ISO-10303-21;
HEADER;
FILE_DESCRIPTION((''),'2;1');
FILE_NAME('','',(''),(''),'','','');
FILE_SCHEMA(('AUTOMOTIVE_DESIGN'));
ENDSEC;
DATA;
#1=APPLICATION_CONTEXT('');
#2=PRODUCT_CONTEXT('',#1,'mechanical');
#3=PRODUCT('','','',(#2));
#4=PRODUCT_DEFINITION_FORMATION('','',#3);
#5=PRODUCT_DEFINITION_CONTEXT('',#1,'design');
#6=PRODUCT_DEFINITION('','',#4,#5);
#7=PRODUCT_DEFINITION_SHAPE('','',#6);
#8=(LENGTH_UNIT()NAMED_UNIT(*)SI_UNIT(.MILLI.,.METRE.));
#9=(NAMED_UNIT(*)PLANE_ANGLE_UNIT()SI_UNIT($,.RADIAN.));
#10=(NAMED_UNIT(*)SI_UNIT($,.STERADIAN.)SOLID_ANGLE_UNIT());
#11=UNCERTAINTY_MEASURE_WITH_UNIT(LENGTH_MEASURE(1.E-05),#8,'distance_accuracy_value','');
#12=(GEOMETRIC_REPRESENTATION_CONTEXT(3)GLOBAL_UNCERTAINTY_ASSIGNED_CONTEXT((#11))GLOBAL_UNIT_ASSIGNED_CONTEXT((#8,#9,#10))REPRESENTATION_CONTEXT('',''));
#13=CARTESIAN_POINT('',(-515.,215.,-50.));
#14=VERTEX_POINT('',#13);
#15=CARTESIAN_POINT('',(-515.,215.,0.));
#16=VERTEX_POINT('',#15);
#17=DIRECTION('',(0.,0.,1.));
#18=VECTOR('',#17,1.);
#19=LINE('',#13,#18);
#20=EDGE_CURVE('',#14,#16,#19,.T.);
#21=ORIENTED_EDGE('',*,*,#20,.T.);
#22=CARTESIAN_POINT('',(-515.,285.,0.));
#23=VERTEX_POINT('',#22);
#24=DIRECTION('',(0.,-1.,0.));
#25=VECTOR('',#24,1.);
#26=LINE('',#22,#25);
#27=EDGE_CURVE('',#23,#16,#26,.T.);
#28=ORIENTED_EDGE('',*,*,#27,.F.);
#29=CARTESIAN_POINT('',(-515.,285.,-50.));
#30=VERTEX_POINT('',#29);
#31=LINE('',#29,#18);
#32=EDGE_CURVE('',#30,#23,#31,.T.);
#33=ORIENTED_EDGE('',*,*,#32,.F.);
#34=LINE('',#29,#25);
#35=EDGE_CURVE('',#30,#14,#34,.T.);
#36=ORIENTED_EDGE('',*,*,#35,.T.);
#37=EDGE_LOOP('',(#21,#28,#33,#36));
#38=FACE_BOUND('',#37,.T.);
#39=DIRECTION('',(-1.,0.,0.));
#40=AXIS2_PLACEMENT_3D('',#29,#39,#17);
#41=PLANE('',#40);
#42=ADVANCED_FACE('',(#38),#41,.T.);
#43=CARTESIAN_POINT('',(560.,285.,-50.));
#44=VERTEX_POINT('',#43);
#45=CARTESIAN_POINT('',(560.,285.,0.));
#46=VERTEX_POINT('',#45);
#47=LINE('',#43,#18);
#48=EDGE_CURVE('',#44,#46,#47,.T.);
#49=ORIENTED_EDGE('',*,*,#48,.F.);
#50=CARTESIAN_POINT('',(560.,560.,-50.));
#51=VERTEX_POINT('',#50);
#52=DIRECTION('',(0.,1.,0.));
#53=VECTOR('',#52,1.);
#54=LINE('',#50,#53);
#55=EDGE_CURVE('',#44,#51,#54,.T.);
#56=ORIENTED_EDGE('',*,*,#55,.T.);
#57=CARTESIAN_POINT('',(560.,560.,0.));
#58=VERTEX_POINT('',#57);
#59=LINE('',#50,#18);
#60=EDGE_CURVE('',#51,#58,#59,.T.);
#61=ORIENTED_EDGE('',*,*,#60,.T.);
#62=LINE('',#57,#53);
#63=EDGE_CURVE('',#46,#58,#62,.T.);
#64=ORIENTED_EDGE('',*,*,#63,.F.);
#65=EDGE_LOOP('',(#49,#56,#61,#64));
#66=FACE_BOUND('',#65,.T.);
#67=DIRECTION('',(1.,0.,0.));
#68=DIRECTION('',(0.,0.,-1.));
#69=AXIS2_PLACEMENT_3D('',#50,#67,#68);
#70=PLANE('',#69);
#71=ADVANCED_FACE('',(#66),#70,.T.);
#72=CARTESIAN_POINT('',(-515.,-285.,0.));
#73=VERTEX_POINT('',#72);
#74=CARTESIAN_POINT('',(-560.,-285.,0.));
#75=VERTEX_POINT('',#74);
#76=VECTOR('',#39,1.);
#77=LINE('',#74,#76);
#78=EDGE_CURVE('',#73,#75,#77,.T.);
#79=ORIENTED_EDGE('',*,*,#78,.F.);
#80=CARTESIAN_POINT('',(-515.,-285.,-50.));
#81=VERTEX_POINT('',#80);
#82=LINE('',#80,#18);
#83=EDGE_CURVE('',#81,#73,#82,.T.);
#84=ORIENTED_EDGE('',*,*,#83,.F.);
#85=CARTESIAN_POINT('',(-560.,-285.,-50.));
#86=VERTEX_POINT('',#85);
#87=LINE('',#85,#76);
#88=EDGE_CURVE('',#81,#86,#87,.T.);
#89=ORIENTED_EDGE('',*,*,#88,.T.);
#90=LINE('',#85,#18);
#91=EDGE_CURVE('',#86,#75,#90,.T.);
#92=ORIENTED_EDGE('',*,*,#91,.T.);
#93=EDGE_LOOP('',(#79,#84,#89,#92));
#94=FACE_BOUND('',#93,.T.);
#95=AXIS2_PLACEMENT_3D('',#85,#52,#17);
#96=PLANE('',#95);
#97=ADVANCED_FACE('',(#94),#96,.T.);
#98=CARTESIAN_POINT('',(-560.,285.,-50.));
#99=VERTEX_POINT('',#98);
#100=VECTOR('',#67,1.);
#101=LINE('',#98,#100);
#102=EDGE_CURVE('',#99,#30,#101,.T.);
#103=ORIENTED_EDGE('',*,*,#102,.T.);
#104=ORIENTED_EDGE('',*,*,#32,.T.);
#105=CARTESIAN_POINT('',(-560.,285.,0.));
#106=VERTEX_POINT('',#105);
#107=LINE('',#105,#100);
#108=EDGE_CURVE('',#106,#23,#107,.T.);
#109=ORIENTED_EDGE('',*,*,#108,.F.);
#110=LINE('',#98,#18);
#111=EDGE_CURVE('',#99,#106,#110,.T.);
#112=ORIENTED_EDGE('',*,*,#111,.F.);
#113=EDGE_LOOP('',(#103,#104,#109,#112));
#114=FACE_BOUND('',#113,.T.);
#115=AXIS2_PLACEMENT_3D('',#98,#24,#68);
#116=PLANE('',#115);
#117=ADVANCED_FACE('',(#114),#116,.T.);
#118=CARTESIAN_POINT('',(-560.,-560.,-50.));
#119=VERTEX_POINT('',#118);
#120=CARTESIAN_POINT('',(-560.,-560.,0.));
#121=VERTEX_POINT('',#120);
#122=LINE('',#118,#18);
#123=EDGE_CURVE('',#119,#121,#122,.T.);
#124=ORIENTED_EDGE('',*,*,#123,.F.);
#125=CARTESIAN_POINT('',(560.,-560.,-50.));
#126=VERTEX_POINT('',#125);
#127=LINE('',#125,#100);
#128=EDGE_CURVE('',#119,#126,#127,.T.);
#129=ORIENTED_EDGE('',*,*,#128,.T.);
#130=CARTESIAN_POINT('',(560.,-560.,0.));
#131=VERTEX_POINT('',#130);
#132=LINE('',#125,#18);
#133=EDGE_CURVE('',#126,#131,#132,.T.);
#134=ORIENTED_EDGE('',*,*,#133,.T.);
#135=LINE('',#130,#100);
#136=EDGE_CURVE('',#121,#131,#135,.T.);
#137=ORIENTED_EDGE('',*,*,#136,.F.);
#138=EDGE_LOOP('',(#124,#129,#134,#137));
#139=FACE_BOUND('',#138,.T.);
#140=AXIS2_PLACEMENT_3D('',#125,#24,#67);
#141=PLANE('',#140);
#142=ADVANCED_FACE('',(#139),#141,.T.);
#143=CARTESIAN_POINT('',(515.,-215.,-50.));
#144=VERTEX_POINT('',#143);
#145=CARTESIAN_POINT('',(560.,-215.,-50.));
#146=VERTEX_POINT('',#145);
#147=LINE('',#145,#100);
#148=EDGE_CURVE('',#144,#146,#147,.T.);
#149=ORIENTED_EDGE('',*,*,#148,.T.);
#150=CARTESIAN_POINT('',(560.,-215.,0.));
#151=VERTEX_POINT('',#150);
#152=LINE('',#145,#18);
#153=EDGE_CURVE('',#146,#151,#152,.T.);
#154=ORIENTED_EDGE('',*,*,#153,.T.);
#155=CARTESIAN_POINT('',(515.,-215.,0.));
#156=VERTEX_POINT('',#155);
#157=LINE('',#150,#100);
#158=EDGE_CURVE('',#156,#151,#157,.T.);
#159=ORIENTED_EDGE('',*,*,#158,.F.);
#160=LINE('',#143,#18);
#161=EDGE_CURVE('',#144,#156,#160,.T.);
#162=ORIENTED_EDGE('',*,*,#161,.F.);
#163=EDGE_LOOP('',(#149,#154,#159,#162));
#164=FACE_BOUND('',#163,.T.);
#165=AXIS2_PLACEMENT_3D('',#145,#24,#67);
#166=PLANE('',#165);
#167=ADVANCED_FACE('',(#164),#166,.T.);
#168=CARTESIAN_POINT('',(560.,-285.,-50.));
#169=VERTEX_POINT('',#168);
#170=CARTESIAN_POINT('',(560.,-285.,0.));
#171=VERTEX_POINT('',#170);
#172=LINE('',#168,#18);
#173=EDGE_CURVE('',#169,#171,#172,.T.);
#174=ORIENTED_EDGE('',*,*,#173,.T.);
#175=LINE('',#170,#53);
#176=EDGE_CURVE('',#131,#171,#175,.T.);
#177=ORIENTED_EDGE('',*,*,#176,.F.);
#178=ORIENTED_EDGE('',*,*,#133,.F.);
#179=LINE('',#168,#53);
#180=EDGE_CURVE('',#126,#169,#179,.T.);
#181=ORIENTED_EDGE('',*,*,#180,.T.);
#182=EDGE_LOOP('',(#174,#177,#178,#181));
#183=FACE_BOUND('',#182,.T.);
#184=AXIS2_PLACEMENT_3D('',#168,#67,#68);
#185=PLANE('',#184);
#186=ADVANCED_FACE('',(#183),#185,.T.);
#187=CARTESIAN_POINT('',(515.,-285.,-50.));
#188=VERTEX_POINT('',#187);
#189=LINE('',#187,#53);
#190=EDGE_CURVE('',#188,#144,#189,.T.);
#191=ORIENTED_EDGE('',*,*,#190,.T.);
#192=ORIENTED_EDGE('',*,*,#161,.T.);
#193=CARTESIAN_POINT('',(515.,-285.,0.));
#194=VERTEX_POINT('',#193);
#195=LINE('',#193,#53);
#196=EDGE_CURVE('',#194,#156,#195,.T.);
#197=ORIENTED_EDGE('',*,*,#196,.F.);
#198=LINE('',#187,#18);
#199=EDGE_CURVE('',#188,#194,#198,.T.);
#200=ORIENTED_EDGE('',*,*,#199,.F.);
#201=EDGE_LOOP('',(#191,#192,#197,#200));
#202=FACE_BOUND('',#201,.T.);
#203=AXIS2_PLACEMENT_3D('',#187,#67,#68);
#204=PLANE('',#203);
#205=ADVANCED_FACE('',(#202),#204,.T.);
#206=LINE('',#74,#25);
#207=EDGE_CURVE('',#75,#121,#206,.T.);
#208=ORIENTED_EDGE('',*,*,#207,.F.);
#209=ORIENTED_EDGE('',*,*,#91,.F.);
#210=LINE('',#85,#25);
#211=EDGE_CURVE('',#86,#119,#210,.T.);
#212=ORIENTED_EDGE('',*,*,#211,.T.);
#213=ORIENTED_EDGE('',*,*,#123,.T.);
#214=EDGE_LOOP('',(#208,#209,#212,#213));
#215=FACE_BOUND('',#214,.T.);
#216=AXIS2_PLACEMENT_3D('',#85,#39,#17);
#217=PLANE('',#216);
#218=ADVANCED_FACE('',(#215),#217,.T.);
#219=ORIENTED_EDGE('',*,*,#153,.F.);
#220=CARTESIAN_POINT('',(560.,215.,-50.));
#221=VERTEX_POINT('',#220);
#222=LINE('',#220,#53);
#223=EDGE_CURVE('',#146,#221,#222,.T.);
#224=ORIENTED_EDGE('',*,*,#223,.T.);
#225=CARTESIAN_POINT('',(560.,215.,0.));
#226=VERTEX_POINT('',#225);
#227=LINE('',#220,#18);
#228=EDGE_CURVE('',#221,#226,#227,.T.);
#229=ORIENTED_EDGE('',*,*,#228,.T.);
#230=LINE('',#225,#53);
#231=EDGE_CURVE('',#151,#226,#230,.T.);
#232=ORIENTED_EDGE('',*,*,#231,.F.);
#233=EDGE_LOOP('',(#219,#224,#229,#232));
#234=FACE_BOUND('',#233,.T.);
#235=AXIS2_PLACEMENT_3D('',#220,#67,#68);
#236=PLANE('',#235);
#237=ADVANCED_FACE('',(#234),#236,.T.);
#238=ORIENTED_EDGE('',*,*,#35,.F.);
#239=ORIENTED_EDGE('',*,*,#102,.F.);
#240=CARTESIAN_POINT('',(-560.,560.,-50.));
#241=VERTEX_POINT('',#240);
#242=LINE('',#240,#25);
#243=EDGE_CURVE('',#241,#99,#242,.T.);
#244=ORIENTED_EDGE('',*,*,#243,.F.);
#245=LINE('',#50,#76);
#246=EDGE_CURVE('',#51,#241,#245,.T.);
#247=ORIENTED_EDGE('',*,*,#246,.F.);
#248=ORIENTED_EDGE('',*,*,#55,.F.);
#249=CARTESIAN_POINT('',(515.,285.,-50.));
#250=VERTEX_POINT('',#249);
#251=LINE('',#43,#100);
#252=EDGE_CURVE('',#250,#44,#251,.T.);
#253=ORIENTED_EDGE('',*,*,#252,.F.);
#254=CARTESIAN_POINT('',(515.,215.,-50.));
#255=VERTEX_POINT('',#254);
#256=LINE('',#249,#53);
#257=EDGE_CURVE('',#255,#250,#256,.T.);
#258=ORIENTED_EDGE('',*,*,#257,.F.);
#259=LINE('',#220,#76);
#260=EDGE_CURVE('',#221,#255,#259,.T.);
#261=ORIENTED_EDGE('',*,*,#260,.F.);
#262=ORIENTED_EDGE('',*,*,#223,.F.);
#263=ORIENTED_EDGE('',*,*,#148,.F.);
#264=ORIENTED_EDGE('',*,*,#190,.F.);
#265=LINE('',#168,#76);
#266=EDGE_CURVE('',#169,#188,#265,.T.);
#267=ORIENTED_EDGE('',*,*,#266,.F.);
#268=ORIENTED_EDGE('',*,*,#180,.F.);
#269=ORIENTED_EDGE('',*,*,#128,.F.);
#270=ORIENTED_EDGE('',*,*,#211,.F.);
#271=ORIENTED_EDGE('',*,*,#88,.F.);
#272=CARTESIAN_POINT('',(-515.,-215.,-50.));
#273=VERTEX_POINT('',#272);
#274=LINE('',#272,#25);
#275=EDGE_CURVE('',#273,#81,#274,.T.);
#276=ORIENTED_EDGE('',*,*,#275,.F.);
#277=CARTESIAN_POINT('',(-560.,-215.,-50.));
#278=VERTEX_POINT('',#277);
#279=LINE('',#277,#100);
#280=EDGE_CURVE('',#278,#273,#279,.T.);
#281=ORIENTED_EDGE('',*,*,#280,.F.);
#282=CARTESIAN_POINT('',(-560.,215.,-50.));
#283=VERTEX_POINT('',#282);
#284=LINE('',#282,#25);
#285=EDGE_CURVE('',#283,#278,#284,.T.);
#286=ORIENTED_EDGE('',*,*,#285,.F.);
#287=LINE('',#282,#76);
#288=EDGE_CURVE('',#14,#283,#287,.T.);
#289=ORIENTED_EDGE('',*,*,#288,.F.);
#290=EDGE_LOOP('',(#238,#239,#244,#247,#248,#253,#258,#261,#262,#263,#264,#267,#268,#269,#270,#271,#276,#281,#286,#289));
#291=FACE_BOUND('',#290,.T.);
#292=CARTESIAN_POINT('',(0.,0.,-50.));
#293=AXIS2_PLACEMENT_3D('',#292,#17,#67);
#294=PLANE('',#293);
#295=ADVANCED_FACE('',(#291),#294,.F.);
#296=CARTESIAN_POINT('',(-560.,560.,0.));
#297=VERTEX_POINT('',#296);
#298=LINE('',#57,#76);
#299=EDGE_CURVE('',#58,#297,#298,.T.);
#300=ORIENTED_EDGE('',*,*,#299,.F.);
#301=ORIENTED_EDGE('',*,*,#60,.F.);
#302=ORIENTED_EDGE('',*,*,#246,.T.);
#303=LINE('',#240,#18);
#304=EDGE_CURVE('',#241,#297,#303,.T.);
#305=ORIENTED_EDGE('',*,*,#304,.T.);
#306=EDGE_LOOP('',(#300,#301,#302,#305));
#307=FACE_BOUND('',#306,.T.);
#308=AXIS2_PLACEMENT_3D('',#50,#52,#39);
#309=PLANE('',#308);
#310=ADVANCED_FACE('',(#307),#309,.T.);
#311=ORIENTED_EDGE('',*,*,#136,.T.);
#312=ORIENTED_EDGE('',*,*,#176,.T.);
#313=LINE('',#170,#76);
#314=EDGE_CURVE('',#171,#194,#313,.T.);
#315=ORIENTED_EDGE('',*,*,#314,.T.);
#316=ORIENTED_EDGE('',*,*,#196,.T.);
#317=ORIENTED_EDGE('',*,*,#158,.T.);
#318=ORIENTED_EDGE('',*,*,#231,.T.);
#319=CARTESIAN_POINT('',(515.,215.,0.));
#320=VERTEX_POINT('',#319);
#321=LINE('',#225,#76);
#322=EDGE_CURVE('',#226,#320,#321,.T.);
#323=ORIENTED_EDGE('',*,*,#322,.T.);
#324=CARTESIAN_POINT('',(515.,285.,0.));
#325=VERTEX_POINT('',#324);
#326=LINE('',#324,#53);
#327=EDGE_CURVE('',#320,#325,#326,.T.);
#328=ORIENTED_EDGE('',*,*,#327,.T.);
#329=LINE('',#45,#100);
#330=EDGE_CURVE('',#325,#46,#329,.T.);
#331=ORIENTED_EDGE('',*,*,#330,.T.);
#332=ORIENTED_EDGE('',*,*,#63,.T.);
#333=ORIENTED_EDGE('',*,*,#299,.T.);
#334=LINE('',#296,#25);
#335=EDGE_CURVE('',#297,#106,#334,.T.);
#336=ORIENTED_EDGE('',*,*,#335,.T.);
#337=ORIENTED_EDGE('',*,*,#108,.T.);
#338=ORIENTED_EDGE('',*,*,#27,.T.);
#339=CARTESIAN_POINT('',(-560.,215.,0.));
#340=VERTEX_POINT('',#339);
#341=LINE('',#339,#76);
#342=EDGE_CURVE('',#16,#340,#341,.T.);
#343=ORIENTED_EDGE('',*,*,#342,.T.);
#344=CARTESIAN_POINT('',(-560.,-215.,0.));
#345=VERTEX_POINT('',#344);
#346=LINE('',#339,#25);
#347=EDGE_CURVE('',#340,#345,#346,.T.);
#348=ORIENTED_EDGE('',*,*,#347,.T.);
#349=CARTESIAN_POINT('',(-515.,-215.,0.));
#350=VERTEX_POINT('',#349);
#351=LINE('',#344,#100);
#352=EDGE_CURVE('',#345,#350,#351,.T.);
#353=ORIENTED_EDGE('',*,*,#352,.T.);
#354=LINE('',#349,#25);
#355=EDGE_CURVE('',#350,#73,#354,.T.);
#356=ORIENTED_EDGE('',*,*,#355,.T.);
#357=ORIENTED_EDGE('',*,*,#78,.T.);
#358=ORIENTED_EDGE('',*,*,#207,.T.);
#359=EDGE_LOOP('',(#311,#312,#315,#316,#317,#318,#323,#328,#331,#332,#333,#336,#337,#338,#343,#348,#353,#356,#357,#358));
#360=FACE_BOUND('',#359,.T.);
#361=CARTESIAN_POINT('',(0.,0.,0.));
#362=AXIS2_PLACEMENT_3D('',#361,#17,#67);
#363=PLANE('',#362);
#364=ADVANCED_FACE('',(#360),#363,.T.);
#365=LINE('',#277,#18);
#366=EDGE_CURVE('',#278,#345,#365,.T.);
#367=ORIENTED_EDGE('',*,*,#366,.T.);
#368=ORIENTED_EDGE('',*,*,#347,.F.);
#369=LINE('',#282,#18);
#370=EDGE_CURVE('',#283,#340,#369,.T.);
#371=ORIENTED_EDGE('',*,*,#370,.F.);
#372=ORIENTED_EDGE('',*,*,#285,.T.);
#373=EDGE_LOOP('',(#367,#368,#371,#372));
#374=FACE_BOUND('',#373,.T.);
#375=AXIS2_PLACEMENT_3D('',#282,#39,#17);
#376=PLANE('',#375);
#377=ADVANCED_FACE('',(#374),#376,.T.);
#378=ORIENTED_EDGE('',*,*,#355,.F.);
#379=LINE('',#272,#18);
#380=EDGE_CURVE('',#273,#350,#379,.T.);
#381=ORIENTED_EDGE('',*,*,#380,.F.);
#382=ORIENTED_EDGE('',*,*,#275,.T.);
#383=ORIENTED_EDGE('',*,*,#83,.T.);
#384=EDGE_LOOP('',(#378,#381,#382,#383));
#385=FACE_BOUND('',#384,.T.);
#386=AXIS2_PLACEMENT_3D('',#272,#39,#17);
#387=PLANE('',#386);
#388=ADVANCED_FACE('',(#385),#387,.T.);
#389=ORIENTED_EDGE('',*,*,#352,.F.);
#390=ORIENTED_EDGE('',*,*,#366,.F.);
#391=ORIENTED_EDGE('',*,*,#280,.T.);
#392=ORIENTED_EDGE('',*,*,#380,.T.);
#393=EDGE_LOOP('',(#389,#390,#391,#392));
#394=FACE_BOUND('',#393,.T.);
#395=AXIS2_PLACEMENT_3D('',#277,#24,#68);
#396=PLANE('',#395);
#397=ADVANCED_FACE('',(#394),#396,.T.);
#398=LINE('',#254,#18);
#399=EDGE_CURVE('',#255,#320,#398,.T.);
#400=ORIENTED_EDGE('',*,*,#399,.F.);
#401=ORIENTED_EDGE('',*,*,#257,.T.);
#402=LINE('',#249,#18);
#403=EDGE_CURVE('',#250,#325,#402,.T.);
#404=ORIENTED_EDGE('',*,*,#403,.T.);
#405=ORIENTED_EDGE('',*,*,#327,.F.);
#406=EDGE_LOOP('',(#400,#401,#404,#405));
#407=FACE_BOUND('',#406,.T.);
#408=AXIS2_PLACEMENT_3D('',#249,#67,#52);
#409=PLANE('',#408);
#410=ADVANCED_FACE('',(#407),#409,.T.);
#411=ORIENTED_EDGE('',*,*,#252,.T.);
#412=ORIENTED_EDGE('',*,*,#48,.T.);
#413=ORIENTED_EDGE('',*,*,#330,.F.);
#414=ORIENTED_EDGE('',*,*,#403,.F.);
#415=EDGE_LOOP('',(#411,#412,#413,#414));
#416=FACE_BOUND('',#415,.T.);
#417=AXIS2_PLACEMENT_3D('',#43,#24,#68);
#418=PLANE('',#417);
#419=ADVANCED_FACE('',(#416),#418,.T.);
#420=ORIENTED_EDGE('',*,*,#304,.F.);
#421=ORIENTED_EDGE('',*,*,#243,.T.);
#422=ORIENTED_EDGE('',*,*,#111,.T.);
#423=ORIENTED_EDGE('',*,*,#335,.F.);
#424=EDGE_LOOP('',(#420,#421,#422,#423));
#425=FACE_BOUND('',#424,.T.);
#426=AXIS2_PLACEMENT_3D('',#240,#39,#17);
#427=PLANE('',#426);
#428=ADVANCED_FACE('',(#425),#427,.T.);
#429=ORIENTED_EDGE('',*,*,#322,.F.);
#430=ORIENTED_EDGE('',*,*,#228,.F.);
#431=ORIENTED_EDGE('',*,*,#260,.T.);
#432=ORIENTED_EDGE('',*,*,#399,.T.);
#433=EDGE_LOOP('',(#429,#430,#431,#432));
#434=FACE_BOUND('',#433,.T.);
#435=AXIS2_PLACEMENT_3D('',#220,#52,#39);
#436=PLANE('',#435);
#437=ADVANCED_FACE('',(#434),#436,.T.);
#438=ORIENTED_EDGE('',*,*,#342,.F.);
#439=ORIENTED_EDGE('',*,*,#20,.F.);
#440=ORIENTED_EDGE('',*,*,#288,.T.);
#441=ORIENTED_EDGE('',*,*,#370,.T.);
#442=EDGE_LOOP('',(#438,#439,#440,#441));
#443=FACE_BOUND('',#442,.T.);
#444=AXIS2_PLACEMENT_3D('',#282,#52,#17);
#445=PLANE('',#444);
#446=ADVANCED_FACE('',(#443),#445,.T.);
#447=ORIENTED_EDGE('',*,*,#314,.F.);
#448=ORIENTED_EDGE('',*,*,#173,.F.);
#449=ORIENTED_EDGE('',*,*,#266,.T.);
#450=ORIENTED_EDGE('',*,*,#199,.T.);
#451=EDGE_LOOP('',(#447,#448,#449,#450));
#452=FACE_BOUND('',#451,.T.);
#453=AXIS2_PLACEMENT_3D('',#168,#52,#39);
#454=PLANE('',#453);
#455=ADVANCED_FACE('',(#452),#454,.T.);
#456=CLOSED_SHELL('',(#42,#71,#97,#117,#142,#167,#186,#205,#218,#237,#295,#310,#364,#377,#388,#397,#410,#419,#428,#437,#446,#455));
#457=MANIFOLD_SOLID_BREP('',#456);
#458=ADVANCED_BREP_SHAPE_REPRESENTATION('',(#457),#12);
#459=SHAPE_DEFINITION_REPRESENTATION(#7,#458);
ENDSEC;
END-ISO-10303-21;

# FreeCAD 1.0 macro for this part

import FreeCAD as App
import Part
import Sketcher
from FreeCAD import Vector


def add_polygon(sketch, points):
    """Adds a closed chain of lines whose ends are joined by coincident constraints."""
    first, n = sketch.GeometryCount, len(points)
    for a, b in zip(points, points[1:] + points[:1]):
        sketch.addGeometry(Part.LineSegment(App.Vector(*a, 0), App.Vector(*b, 0)), False)
    for i in range(n):
        sketch.addConstraint(Sketcher.Constraint("Coincident", first + i, 2, first + (i + 1) % n, 1))

doc = App.newDocument("Part")
body = doc.addObject("PartDesign::Body", "Body")

# Sketch on XY plane
sketch1 = body.newObject("Sketcher::SketchObject", "Sketch")
sketch1.AttachmentSupport = (doc.getObject("XY_Plane"), [""])
sketch1.MapMode = "FlatFace"
add_polygon(sketch1, [(-560, -560), (560, -560), (560, -285), (515, -285), (515, -215), (560, -215), (560, 215), (515, 215), (515, 285), (560, 285), (560, 560), (-560, 560), (-560, 285), (-515, 285), (-515, 215), (-560, 215), (-560, -215), (-515, -215), (-515, -285), (-560, -285)])  # lines 0-19
sketch1.addConstraint([
    Sketcher.Constraint("Horizontal", 0),
    Sketcher.Constraint("Vertical", 1),
    Sketcher.Constraint("Horizontal", 2),
    Sketcher.Constraint("Vertical", 3),
    Sketcher.Constraint("Horizontal", 4),
    Sketcher.Constraint("Vertical", 5),
    Sketcher.Constraint("Horizontal", 6),
    Sketcher.Constraint("Vertical", 7),
    Sketcher.Constraint("Horizontal", 8),
    Sketcher.Constraint("Vertical", 9),
    Sketcher.Constraint("Horizontal", 10),
    Sketcher.Constraint("Vertical", 11),
    Sketcher.Constraint("Horizontal", 12),
    Sketcher.Constraint("Vertical", 13),
    Sketcher.Constraint("Horizontal", 14),
    Sketcher.Constraint("Vertical", 15),
    Sketcher.Constraint("Horizontal", 16),
    Sketcher.Constraint("Vertical", 17),
    Sketcher.Constraint("Horizontal", 18),
    Sketcher.Constraint("Vertical", 19),
    Sketcher.Constraint("Symmetric", 0, 2, 10, 2, -1, 1),
    Sketcher.Constraint("Symmetric", 2, 2, 12, 2, -1, 1),
    Sketcher.Constraint("Symmetric", 4, 2, 14, 2, -1, 1),
    Sketcher.Constraint("Symmetric", 6, 2, 16, 2, -1, 1),
    Sketcher.Constraint("Symmetric", 8, 2, 18, 2, -1, 1),
    Sketcher.Constraint("Symmetric", 8, 2, 11, 2, -2),
    Sketcher.Constraint("Symmetric", 6, 2, 13, 2, -2),
    Sketcher.Constraint("Vertical", 1, 2, 4, 2),
    Sketcher.Constraint("DistanceX", 0, 1, 0, 2, 1120.0),
    Sketcher.Constraint("DistanceX", 2, 2, 2, 1, 45.0),
    Sketcher.Constraint("DistanceY", 1, 1, 1, 2, 275.0),
    Sketcher.Constraint("DistanceY", 3, 1, 3, 2, 70.0),
    Sketcher.Constraint("DistanceY", 5, 1, 5, 2, 430.0),
])
pad1 = body.newObject("PartDesign::Pad", "Pad")
pad1.Profile = sketch1
pad1.Length = 50
pad1.Reversed = True

doc.recompute()
